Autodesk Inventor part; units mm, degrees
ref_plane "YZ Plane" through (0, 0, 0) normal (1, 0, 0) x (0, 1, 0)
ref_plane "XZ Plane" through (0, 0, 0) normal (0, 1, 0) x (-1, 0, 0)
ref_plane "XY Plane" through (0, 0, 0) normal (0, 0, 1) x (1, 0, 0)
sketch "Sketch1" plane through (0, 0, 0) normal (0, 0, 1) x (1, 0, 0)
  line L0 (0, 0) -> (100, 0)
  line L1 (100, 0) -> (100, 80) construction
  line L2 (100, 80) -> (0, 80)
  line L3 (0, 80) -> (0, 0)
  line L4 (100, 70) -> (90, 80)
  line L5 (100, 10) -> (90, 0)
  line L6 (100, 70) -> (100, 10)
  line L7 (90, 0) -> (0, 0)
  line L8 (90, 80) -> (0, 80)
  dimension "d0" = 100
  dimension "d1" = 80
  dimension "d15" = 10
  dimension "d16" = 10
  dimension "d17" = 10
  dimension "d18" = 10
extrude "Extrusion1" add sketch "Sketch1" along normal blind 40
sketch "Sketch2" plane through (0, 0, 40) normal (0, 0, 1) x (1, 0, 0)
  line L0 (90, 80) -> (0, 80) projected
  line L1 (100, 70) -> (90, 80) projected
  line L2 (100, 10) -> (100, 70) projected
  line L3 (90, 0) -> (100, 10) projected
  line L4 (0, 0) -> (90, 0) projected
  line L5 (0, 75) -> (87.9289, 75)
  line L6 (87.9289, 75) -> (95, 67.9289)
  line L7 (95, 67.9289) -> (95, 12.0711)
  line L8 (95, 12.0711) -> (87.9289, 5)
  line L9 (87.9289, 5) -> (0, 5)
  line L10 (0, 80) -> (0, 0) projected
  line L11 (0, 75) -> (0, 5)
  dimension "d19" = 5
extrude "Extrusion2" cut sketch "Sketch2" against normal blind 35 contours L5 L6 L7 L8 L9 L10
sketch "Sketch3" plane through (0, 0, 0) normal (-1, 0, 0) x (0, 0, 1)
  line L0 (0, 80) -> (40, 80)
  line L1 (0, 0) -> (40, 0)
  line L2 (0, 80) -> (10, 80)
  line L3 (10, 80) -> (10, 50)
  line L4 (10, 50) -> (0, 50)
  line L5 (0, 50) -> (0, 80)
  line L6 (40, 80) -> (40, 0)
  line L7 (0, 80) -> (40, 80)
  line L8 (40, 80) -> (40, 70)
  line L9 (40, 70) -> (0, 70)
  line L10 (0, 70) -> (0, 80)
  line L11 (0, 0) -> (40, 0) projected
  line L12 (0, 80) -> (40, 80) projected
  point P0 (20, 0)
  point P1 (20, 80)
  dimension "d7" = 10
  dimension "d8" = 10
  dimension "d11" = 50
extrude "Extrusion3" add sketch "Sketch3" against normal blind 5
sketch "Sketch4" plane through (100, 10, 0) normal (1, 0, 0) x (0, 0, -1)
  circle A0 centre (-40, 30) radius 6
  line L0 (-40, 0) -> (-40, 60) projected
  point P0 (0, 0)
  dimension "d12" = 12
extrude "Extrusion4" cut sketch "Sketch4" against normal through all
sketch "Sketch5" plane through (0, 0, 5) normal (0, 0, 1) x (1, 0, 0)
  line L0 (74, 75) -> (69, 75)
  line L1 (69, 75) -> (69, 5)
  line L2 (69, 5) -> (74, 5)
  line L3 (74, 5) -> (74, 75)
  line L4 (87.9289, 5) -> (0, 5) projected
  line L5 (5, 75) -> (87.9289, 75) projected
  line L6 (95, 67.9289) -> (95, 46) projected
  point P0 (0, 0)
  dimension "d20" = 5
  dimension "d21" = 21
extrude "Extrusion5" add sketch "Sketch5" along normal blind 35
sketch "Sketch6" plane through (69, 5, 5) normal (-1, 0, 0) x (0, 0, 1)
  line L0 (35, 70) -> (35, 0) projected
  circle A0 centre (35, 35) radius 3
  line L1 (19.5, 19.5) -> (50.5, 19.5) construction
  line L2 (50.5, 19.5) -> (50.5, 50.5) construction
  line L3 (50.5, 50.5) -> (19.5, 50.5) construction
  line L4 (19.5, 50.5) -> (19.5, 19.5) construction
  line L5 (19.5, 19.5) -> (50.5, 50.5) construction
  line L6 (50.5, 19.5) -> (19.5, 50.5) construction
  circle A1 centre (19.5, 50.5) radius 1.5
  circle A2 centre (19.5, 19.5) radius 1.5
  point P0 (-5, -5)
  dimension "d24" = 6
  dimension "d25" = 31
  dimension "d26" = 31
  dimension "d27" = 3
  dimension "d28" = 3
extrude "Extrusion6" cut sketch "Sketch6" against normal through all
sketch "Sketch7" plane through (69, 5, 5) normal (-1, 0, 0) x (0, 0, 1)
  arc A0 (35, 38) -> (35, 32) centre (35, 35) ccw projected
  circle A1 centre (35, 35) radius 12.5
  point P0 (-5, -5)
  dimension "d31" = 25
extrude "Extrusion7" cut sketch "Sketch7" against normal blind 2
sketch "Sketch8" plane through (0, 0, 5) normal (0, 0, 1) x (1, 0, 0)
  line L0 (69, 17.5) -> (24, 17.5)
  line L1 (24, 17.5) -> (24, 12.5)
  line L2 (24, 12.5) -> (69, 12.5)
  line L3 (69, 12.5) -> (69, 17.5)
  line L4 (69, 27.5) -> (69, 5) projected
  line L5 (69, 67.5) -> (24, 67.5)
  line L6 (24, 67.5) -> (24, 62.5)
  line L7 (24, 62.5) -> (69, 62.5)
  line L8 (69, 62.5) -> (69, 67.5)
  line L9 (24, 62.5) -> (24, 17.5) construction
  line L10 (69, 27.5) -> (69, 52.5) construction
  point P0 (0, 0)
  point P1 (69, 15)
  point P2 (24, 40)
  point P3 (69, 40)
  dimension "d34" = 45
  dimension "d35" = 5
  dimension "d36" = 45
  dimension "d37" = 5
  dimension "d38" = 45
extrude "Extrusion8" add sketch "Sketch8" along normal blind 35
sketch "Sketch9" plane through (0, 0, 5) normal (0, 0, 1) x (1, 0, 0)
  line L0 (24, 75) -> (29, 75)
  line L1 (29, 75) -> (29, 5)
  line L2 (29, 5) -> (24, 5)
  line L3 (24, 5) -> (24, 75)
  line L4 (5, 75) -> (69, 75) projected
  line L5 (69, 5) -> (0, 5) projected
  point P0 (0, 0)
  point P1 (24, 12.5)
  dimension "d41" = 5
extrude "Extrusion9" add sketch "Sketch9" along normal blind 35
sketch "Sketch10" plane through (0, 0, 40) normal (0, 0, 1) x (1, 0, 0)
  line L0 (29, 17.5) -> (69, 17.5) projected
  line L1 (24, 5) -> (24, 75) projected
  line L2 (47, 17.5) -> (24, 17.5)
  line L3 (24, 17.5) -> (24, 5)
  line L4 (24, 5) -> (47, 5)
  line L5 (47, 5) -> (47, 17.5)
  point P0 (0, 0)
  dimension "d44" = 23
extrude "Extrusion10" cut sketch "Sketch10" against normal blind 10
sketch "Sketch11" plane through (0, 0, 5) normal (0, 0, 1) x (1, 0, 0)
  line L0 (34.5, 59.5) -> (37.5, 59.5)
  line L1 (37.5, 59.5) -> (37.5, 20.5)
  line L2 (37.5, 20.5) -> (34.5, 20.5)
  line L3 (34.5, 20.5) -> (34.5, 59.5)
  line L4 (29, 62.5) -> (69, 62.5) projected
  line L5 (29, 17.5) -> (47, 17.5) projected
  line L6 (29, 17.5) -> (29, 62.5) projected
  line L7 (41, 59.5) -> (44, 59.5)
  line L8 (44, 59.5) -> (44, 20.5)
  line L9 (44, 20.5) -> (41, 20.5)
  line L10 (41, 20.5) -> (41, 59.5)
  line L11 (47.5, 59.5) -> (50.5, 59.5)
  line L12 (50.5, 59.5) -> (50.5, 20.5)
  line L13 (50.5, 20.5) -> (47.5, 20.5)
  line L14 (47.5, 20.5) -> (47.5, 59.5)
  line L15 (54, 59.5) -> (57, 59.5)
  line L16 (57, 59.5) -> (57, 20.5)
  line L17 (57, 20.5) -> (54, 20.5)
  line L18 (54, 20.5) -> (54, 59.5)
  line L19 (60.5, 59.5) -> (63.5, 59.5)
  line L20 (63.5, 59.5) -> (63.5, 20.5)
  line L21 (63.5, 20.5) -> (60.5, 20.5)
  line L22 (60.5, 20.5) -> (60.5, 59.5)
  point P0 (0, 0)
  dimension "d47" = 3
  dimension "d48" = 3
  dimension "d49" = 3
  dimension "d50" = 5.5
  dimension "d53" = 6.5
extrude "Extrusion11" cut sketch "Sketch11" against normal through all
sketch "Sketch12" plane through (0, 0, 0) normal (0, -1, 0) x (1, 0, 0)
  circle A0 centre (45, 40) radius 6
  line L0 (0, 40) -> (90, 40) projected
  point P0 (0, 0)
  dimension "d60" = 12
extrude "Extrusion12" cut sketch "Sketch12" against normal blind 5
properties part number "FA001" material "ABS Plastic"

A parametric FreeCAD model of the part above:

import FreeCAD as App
import Part
import Sketcher

V = App.Vector


def add_polygon(sketch, points):
    """Adds a closed chain of lines whose ends are joined by coincident constraints."""
    first, n = sketch.GeometryCount, len(points)
    for a, b in zip(points, points[1:] + points[:1]):
        sketch.addGeometry(Part.LineSegment(App.Vector(*a, 0), App.Vector(*b, 0)), False)
    for i in range(n):
        sketch.addConstraint(Sketcher.Constraint("Coincident", first + i, 2, first + (i + 1) % n, 1))

doc = App.newDocument("Part")
body = doc.addObject("PartDesign::Body", "Body")

# Sketch on XY plane
sketch1 = doc.addObject("Sketcher::SketchObject", "Sketch")
body.addObject(sketch1)
sketch1.AttachmentSupport = (doc.XY_Plane, [""])
sketch1.MapMode = "FlatFace"
add_polygon(sketch1, [(0, 80), (0, 0), (90, 0), (100, 10), (100, 70), (90, 80)])  # lines 0-5
sketch1.addConstraint(Sketcher.Constraint("Vertical", 0))
sketch1.addConstraint(Sketcher.Constraint("Horizontal", 1))
sketch1.addConstraint(Sketcher.Constraint("Vertical", 3))
sketch1.addConstraint(Sketcher.Constraint("Horizontal", 5))
sketch1.addConstraint(Sketcher.Constraint("Coincident", 0, 2, -1, 1))
sketch1.addConstraint(Sketcher.Constraint("Perpendicular", 2, 4))
sketch1.addConstraint(Sketcher.Constraint("Vertical", 1, 2, 4, 2))
sketch1.addConstraint(Sketcher.Constraint("Equal", 2, 4))
sketch1.addConstraint(Sketcher.Constraint("DistanceY", 0, 2, 0, 1, 80.0))
sketch1.addConstraint(Sketcher.Constraint("DistanceX", -1, 1, 2, 2, 100.0))
sketch1.addConstraint(Sketcher.Constraint("DistanceY", -1, 1, 2, 2, 10.0))
pad1 = doc.addObject("PartDesign::Pad", "Pad")
body.addObject(pad1)
pad1.Profile = sketch1
pad1.Length = 40

# Sketch on XY plane
sketch2 = doc.addObject("Sketcher::SketchObject", "Sketch001")
body.addObject(sketch2)
sketch2.AttachmentSupport = (doc.XY_Plane, [""])
sketch2.MapMode = "FlatFace"
sketch2.AttachmentOffset = App.Placement(V(0, 0, 40), App.Rotation())
add_polygon(sketch2, [(88, 75), (0, 75), (0, 5), (88, 5), (95, 12), (95, 68)])  # lines 0-5
sketch2.addConstraint(Sketcher.Constraint("Horizontal", 0))
sketch2.addConstraint(Sketcher.Constraint("Vertical", 1))
sketch2.addConstraint(Sketcher.Constraint("Horizontal", 2))
sketch2.addConstraint(Sketcher.Constraint("Vertical", 4))
sketch2.addConstraint(Sketcher.Constraint("PointOnObject", 0, 2, -2))
sketch2.addConstraint(Sketcher.Constraint("Perpendicular", 3, 5))
sketch2.addConstraint(Sketcher.Constraint("Vertical", 2, 2, 5, 2))
sketch2.addConstraint(Sketcher.Constraint("Equal", 3, 5))
sketch2.addConstraint(Sketcher.Constraint("DistanceY", -1, 1, 1, 2, 5.0))
sketch2.addConstraint(Sketcher.Constraint("DistanceY", 1, 2, 1, 1, 70.0))
sketch2.addConstraint(Sketcher.Constraint("Distance", 3, 10.0))
sketch2.addConstraint(Sketcher.Constraint("DistanceX", -1, 1, 3, 2, 95.0))
pocket1 = doc.addObject("PartDesign::Pocket", "Pocket")
body.addObject(pocket1)
pocket1.Profile = sketch2
pocket1.Length = 35

# Sketch on YZ plane
sketch3 = doc.addObject("Sketcher::SketchObject", "Sketch002")
body.addObject(sketch3)
sketch3.AttachmentSupport = (doc.YZ_Plane, [""])
sketch3.MapMode = "FlatFace"
add_polygon(sketch3, [(80, 0), (50, 0), (50, 10), (70, 10), (70, 40), (80, 40)])  # lines 0-5
sketch3.addConstraint(Sketcher.Constraint("Horizontal", 0))
sketch3.addConstraint(Sketcher.Constraint("Vertical", 1))
sketch3.addConstraint(Sketcher.Constraint("Horizontal", 2))
sketch3.addConstraint(Sketcher.Constraint("Vertical", 3))
sketch3.addConstraint(Sketcher.Constraint("Horizontal", 4))
sketch3.addConstraint(Sketcher.Constraint("Vertical", 5))
sketch3.addConstraint(Sketcher.Constraint("PointOnObject", 0, 2, -1))
sketch3.addConstraint(Sketcher.Constraint("Equal", 4, 1))
sketch3.addConstraint(Sketcher.Constraint("Equal", 0, 3))
sketch3.addConstraint(Sketcher.Constraint("DistanceX", 4, 1, 4, 2, 10.0))
sketch3.addConstraint(Sketcher.Constraint("DistanceX", -1, 1, 0, 2, 50.0))
sketch3.addConstraint(Sketcher.Constraint("DistanceX", 0, 2, 0, 1, 30.0))
pad2 = doc.addObject("PartDesign::Pad", "Pad001")
body.addObject(pad2)
pad2.Profile = sketch3
pad2.Length = 5

# Sketch on YZ plane
sketch4 = doc.addObject("Sketcher::SketchObject", "Sketch003")
body.addObject(sketch4)
sketch4.AttachmentSupport = (doc.YZ_Plane, [""])
sketch4.MapMode = "FlatFace"
sketch4.AttachmentOffset = App.Placement(V(0, 0, 100), App.Rotation())
sketch4.addGeometry(Part.Circle(V(40, 40, 0), V(0, 0, 1), 6), False)
sketch4.addConstraint(Sketcher.Constraint("Diameter", 0, 12.0))
sketch4.addConstraint(Sketcher.Constraint("DistanceX", -1, 1, 0, 3, 40.0))
sketch4.addConstraint(Sketcher.Constraint("DistanceY", -1, 1, 0, 3, 40.0))
pocket2 = doc.addObject("PartDesign::Pocket", "Pocket001")
body.addObject(pocket2)
pocket2.Profile = sketch4
pocket2.Type = "ThroughAll"

# Sketch on XY plane
sketch5 = doc.addObject("Sketcher::SketchObject", "Sketch004")
body.addObject(sketch5)
sketch5.AttachmentSupport = (doc.XY_Plane, [""])
sketch5.MapMode = "FlatFace"
sketch5.AttachmentOffset = App.Placement(V(0, 0, 5), App.Rotation())
add_polygon(sketch5, [(74, 5), (74, 75), (69, 75), (69, 5)])  # lines 0-3
sketch5.addConstraint(Sketcher.Constraint("Vertical", 0))
sketch5.addConstraint(Sketcher.Constraint("Horizontal", 1))
sketch5.addConstraint(Sketcher.Constraint("Vertical", 2))
sketch5.addConstraint(Sketcher.Constraint("Horizontal", 3))
sketch5.addConstraint(Sketcher.Constraint("DistanceX", 1, 2, 1, 1, 5.0))
sketch5.addConstraint(Sketcher.Constraint("DistanceY", -1, 1, 2, 2, 5.0))
sketch5.addConstraint(Sketcher.Constraint("DistanceY", 0, 1, 0, 2, 70.0))
sketch5.addConstraint(Sketcher.Constraint("DistanceX", -1, 1, 0, 2, 74.0))
pad3 = doc.addObject("PartDesign::Pad", "Pad002")
body.addObject(pad3)
pad3.Profile = sketch5
pad3.Length = 35

# Sketch on YZ plane
sketch6 = doc.addObject("Sketcher::SketchObject", "Sketch005")
body.addObject(sketch6)
sketch6.AttachmentSupport = (doc.YZ_Plane, [""])
sketch6.MapMode = "FlatFace"
sketch6.AttachmentOffset = App.Placement(V(0, 0, 69), App.Rotation())
sketch6.addGeometry(Part.Circle(V(40, 40, 0), V(0, 0, 1), 3), False)
sketch6.addGeometry(Part.Circle(V(55.5, 24.5, 0), V(0, 0, 1), 1.5), False)
sketch6.addGeometry(Part.Circle(V(24.5, 24.5, 0), V(0, 0, 1), 1.5), False)
sketch6.addConstraint(Sketcher.Constraint("Equal", 1, 2))
sketch6.addConstraint(Sketcher.Constraint("Horizontal", 1, 3, 2, 3))
sketch6.addConstraint(Sketcher.Constraint("Diameter", 0, 6.0))
sketch6.addConstraint(Sketcher.Constraint("Diameter", 1, 3.0))
sketch6.addConstraint(Sketcher.Constraint("DistanceX", 2, 3, 1, 3, 31.0))
sketch6.addConstraint(Sketcher.Constraint("DistanceX", -1, 1, 0, 3, 40.0))
sketch6.addConstraint(Sketcher.Constraint("DistanceY", -1, 1, 0, 3, 40.0))
sketch6.addConstraint(Sketcher.Constraint("DistanceX", -1, 1, 1, 3, 55.5))
sketch6.addConstraint(Sketcher.Constraint("DistanceY", -1, 1, 1, 3, 24.5))
pocket3 = doc.addObject("PartDesign::Pocket", "Pocket002")
body.addObject(pocket3)
pocket3.Profile = sketch6
pocket3.Type = "ThroughAll"
pocket3.Reversed = True

# Sketch on YZ plane
sketch7 = doc.addObject("Sketcher::SketchObject", "Sketch006")
body.addObject(sketch7)
sketch7.AttachmentSupport = (doc.YZ_Plane, [""])
sketch7.MapMode = "FlatFace"
sketch7.AttachmentOffset = App.Placement(V(0, 0, 69), App.Rotation())
sketch7.addGeometry(Part.Circle(V(40, 40, 0), V(0, 0, 1), 12), False)
sketch7.addConstraint(Sketcher.Constraint("Diameter", 0, 25.0))
sketch7.addConstraint(Sketcher.Constraint("DistanceX", -1, 1, 0, 3, 40.0))
sketch7.addConstraint(Sketcher.Constraint("DistanceY", -1, 1, 0, 3, 40.0))
pocket4 = doc.addObject("PartDesign::Pocket", "Pocket003")
body.addObject(pocket4)
pocket4.Profile = sketch7
pocket4.Length = 2
pocket4.Reversed = True

# Sketch on XY plane
sketch8 = doc.addObject("Sketcher::SketchObject", "Sketch007")
body.addObject(sketch8)
sketch8.AttachmentSupport = (doc.XY_Plane, [""])
sketch8.MapMode = "FlatFace"
sketch8.AttachmentOffset = App.Placement(V(0, 0, 5), App.Rotation())
add_polygon(sketch8, [(69, 12), (69, 18), (24, 18), (24, 12)])  # lines 0-3
add_polygon(sketch8, [(69, 62), (69, 68), (24, 68), (24, 62)])  # lines 4-7
sketch8.addConstraint(Sketcher.Constraint("Vertical", 0))
sketch8.addConstraint(Sketcher.Constraint("Horizontal", 1))
sketch8.addConstraint(Sketcher.Constraint("Vertical", 2))
sketch8.addConstraint(Sketcher.Constraint("Horizontal", 3))
sketch8.addConstraint(Sketcher.Constraint("Vertical", 4))
sketch8.addConstraint(Sketcher.Constraint("Horizontal", 5))
sketch8.addConstraint(Sketcher.Constraint("Vertical", 6))
sketch8.addConstraint(Sketcher.Constraint("Horizontal", 7))
sketch8.addConstraint(Sketcher.Constraint("Vertical", 3, 2, 4, 2))
sketch8.addConstraint(Sketcher.Constraint("Vertical", 2, 2, 5, 2))
sketch8.addConstraint(Sketcher.Constraint("Equal", 2, 4))
sketch8.addConstraint(Sketcher.Constraint("DistanceX", 1, 2, 1, 1, 45.0))
sketch8.addConstraint(Sketcher.Constraint("DistanceY", 0, 1, 0, 2, 5.0))
sketch8.addConstraint(Sketcher.Constraint("DistanceY", 1, 2, 6, 2, 45.0))
sketch8.addConstraint(Sketcher.Constraint("DistanceX", -1, 1, 0, 2, 69.0))
sketch8.addConstraint(Sketcher.Constraint("DistanceY", -1, 1, 0, 2, 17.5))
pad4 = doc.addObject("PartDesign::Pad", "Pad003")
body.addObject(pad4)
pad4.Profile = sketch8
pad4.Length = 35

# Sketch on XY plane
sketch9 = doc.addObject("Sketcher::SketchObject", "Sketch008")
body.addObject(sketch9)
sketch9.AttachmentSupport = (doc.XY_Plane, [""])
sketch9.MapMode = "FlatFace"
sketch9.AttachmentOffset = App.Placement(V(0, 0, 5), App.Rotation())
add_polygon(sketch9, [(29, 75), (24, 75), (24, 5), (29, 5)])  # lines 0-3
sketch9.addConstraint(Sketcher.Constraint("Horizontal", 0))
sketch9.addConstraint(Sketcher.Constraint("Vertical", 1))
sketch9.addConstraint(Sketcher.Constraint("Horizontal", 2))
sketch9.addConstraint(Sketcher.Constraint("Vertical", 3))
sketch9.addConstraint(Sketcher.Constraint("DistanceX", 0, 2, 0, 1, 5.0))
sketch9.addConstraint(Sketcher.Constraint("DistanceY", -1, 1, 1, 2, 5.0))
sketch9.addConstraint(Sketcher.Constraint("DistanceY", 1, 2, 1, 1, 70.0))
sketch9.addConstraint(Sketcher.Constraint("DistanceX", -1, 1, 0, 2, 24.0))
pad5 = doc.addObject("PartDesign::Pad", "Pad004")
body.addObject(pad5)
pad5.Profile = sketch9
pad5.Length = 35

# Sketch on XY plane
sketch10 = doc.addObject("Sketcher::SketchObject", "Sketch009")
body.addObject(sketch10)
sketch10.AttachmentSupport = (doc.XY_Plane, [""])
sketch10.MapMode = "FlatFace"
sketch10.AttachmentOffset = App.Placement(V(0, 0, 40), App.Rotation())
add_polygon(sketch10, [(47, 18), (24, 18), (24, 5), (47, 5)])  # lines 0-3
sketch10.addConstraint(Sketcher.Constraint("Horizontal", 0))
sketch10.addConstraint(Sketcher.Constraint("Vertical", 1))
sketch10.addConstraint(Sketcher.Constraint("Horizontal", 2))
sketch10.addConstraint(Sketcher.Constraint("Vertical", 3))
sketch10.addConstraint(Sketcher.Constraint("DistanceX", 0, 2, 0, 1, 23.0))
sketch10.addConstraint(Sketcher.Constraint("DistanceY", 1, 2, 1, 1, 12.5))
sketch10.addConstraint(Sketcher.Constraint("DistanceX", -1, 1, 0, 2, 24.0))
sketch10.addConstraint(Sketcher.Constraint("DistanceY", -1, 1, 1, 2, 5.0))
pocket5 = doc.addObject("PartDesign::Pocket", "Pocket004")
body.addObject(pocket5)
pocket5.Profile = sketch10
pocket5.Length = 10

# Sketch on XY plane
sketch11 = doc.addObject("Sketcher::SketchObject", "Sketch010")
body.addObject(sketch11)
sketch11.AttachmentSupport = (doc.XY_Plane, [""])
sketch11.MapMode = "FlatFace"
sketch11.AttachmentOffset = App.Placement(V(0, 0, 5), App.Rotation())
add_polygon(sketch11, [(37.5, 59.5), (34.5, 59.5), (34.5, 20.5), (37.5, 20.5)])  # lines 0-3
add_polygon(sketch11, [(44, 59.5), (41, 59.5), (41, 20.5), (44, 20.5)])  # lines 4-7
add_polygon(sketch11, [(50.5, 59.5), (47.5, 59.5), (47.5, 20.5), (50.5, 20.5)])  # lines 8-11
add_polygon(sketch11, [(57, 59.5), (54, 59.5), (54, 20.5), (57, 20.5)])  # lines 12-15
add_polygon(sketch11, [(63.5, 59.5), (60.5, 59.5), (60.5, 20.5), (63.5, 20.5)])  # lines 16-19
sketch11.addConstraint(Sketcher.Constraint("Horizontal", 0))
sketch11.addConstraint(Sketcher.Constraint("Vertical", 1))
sketch11.addConstraint(Sketcher.Constraint("Horizontal", 2))
sketch11.addConstraint(Sketcher.Constraint("Vertical", 3))
sketch11.addConstraint(Sketcher.Constraint("Horizontal", 4))
sketch11.addConstraint(Sketcher.Constraint("Vertical", 5))
sketch11.addConstraint(Sketcher.Constraint("Horizontal", 6))
sketch11.addConstraint(Sketcher.Constraint("Vertical", 7))
sketch11.addConstraint(Sketcher.Constraint("Horizontal", 8))
sketch11.addConstraint(Sketcher.Constraint("Vertical", 9))
sketch11.addConstraint(Sketcher.Constraint("Horizontal", 10))
sketch11.addConstraint(Sketcher.Constraint("Vertical", 11))
sketch11.addConstraint(Sketcher.Constraint("Horizontal", 12))
sketch11.addConstraint(Sketcher.Constraint("Vertical", 13))
sketch11.addConstraint(Sketcher.Constraint("Horizontal", 14))
sketch11.addConstraint(Sketcher.Constraint("Vertical", 15))
sketch11.addConstraint(Sketcher.Constraint("Horizontal", 16))
sketch11.addConstraint(Sketcher.Constraint("Vertical", 17))
sketch11.addConstraint(Sketcher.Constraint("Horizontal", 18))
sketch11.addConstraint(Sketcher.Constraint("Vertical", 19))
sketch11.addConstraint(Sketcher.Constraint("Horizontal", 3, 2, 4, 2))
sketch11.addConstraint(Sketcher.Constraint("Horizontal", 2, 2, 5, 2))
sketch11.addConstraint(Sketcher.Constraint("Horizontal", 7, 2, 8, 2))
sketch11.addConstraint(Sketcher.Constraint("Horizontal", 6, 2, 9, 2))
sketch11.addConstraint(Sketcher.Constraint("Horizontal", 11, 2, 12, 2))
sketch11.addConstraint(Sketcher.Constraint("Horizontal", 10, 2, 13, 2))
sketch11.addConstraint(Sketcher.Constraint("Horizontal", 15, 2, 16, 2))
sketch11.addConstraint(Sketcher.Constraint("Horizontal", 14, 2, 17, 2))
sketch11.addConstraint(Sketcher.Constraint("Equal", 2, 4))
sketch11.addConstraint(Sketcher.Constraint("Equal", 6, 8))
sketch11.addConstraint(Sketcher.Constraint("Equal", 10, 12))
sketch11.addConstraint(Sketcher.Constraint("Equal", 14, 16))
sketch11.addConstraint(Sketcher.Constraint("DistanceX", 0, 2, 0, 1, 3.0))
sketch11.addConstraint(Sketcher.Constraint("DistanceX", 3, 2, 8, 2, 10.0))
sketch11.addConstraint(Sketcher.Constraint("DistanceX", 7, 2, 12, 2, 10.0))
sketch11.addConstraint(Sketcher.Constraint("DistanceX", 11, 2, 16, 2, 10.0))
sketch11.addConstraint(Sketcher.Constraint("DistanceX", 0, 2, 4, 2, 6.5))
sketch11.addConstraint(Sketcher.Constraint("DistanceY", 1, 2, 1, 1, 39.0))
sketch11.addConstraint(Sketcher.Constraint("DistanceX", -1, 1, 4, 2, 41.0))
sketch11.addConstraint(Sketcher.Constraint("DistanceY", -1, 1, 0, 2, 59.5))
pocket6 = doc.addObject("PartDesign::Pocket", "Pocket005")
body.addObject(pocket6)
pocket6.Profile = sketch11
pocket6.Type = "ThroughAll"

# Sketch on XZ plane
sketch12 = doc.addObject("Sketcher::SketchObject", "Sketch011")
body.addObject(sketch12)
sketch12.AttachmentSupport = (doc.XZ_Plane, [""])
sketch12.MapMode = "FlatFace"
sketch12.addGeometry(Part.Circle(V(45, 40, 0), V(0, 0, 1), 6), False)
sketch12.addConstraint(Sketcher.Constraint("Diameter", 0, 12.0))
sketch12.addConstraint(Sketcher.Constraint("DistanceX", -1, 1, 0, 3, 45.0))
sketch12.addConstraint(Sketcher.Constraint("DistanceY", -1, 1, 0, 3, 40.0))
pocket7 = doc.addObject("PartDesign::Pocket", "Pocket006")
body.addObject(pocket7)
pocket7.Profile = sketch12
pocket7.Length = 5

doc.recompute()
